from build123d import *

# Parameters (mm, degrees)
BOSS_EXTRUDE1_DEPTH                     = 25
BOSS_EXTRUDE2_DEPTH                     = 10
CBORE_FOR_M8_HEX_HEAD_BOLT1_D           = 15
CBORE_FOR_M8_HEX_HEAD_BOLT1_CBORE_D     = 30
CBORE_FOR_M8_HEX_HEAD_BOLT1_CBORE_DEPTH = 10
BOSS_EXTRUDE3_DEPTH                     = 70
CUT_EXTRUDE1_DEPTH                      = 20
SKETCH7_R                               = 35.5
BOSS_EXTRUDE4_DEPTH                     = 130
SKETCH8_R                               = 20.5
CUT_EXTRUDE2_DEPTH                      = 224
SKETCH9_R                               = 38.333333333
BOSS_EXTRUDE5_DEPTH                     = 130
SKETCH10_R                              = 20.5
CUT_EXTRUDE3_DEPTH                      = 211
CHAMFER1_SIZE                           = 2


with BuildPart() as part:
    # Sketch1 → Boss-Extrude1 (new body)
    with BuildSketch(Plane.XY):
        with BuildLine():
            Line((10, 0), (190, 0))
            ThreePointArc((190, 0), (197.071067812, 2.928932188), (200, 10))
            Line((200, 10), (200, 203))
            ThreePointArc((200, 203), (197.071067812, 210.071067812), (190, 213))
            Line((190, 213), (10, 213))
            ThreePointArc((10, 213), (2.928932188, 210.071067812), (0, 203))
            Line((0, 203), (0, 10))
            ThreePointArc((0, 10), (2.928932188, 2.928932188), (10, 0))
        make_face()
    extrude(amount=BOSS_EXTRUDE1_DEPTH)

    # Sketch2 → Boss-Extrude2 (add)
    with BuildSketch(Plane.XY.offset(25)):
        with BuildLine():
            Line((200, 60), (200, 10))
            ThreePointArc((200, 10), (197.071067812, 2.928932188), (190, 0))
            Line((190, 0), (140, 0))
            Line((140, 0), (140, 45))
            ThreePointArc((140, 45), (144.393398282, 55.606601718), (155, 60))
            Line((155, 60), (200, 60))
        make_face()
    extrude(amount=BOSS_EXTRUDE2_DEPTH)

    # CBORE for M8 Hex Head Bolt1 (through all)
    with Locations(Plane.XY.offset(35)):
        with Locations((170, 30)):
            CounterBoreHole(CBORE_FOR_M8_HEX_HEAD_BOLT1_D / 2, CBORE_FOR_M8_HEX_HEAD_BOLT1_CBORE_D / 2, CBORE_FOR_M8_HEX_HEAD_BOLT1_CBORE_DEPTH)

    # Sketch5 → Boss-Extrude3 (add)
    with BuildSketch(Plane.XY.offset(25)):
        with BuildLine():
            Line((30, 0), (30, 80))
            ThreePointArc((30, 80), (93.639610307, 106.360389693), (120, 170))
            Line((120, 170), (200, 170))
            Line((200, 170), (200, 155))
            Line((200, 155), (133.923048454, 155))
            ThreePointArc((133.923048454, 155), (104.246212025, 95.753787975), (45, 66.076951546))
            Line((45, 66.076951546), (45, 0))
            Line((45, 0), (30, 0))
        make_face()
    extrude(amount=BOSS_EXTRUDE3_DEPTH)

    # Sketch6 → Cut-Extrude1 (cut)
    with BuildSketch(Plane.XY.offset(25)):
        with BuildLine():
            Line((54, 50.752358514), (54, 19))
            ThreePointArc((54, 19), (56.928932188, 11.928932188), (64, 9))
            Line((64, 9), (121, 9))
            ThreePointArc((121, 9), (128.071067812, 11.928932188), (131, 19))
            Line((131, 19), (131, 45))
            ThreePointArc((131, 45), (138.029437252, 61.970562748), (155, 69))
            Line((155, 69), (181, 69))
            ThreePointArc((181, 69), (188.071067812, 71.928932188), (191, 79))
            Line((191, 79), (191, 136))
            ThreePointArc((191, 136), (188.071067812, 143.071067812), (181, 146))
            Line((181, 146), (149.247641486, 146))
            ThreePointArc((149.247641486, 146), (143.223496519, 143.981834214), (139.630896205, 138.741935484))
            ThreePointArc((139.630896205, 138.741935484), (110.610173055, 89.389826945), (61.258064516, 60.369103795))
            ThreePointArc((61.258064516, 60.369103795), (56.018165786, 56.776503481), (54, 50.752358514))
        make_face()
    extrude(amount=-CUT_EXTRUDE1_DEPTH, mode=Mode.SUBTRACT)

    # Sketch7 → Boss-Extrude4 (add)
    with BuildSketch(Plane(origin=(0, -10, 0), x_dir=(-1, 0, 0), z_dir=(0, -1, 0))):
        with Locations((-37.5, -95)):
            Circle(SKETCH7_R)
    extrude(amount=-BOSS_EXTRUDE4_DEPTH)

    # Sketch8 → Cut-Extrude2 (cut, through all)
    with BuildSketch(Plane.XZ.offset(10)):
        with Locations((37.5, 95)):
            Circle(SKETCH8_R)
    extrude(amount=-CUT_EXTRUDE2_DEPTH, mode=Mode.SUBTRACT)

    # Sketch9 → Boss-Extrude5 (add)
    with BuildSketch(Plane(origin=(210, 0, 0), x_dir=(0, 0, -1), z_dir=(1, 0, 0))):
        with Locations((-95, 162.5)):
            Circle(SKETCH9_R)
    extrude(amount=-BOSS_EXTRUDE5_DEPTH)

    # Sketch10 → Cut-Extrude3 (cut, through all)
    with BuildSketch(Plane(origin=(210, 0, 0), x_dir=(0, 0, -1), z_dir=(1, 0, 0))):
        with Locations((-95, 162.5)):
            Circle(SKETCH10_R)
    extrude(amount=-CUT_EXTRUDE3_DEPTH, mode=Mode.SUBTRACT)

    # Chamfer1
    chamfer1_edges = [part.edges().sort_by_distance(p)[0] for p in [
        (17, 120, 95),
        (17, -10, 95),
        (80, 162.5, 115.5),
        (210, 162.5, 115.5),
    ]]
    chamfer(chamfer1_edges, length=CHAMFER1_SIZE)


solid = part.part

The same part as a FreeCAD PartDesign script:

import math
import FreeCAD as App
import Part
import Sketcher
from FreeCAD import Vector


def edges_at(feature, points):
    """Names of the edges that pass closest to the given points."""
    edges = feature.Shape.Edges
    near = lambda p: min(range(len(edges)), key=lambda i: edges[i].distToShape(Part.Vertex(*p))[0])
    return sorted({f"Edge{near(p) + 1}" for p in points})

doc = App.newDocument("Part")
body = doc.addObject("PartDesign::Body", "Body")

sketch1 = doc.addObject("Sketcher::SketchObject", "Sketch")
body.addObject(sketch1)
sketch1.AttachmentSupport = (doc.XY_Plane, [""])
sketch1.MapMode = "FlatFace"
sketch1.addGeometry(Part.LineSegment(Vector(10, 0, 0), Vector(190, 0, 0)), False)
sketch1.addGeometry(Part.ArcOfCircle(Part.Circle(Vector(190, 10, 0), Vector(0, 0, 1), 10), math.radians(-90), math.radians(0)), False)
sketch1.addGeometry(Part.LineSegment(Vector(200, 10, 0), Vector(200, 203, 0)), False)
sketch1.addGeometry(Part.ArcOfCircle(Part.Circle(Vector(190, 203, 0), Vector(0, 0, 1), 10), math.radians(0), math.radians(90)), False)
sketch1.addGeometry(Part.LineSegment(Vector(190, 213, 0), Vector(10, 213, 0)), False)
sketch1.addGeometry(Part.ArcOfCircle(Part.Circle(Vector(10, 203, 0), Vector(0, 0, 1), 10), math.radians(90), math.radians(180)), False)
sketch1.addGeometry(Part.LineSegment(Vector(0, 203, 0), Vector(0, 10, 0)), False)
sketch1.addGeometry(Part.ArcOfCircle(Part.Circle(Vector(10, 10, 0), Vector(0, 0, 1), 10), math.radians(180), math.radians(270)), False)
sketch1.addConstraint(Sketcher.Constraint("Tangent", 0, 2, 1, 1))
sketch1.addConstraint(Sketcher.Constraint("Tangent", 1, 2, 2, 1))
sketch1.addConstraint(Sketcher.Constraint("Tangent", 2, 2, 3, 1))
sketch1.addConstraint(Sketcher.Constraint("Tangent", 3, 2, 4, 1))
sketch1.addConstraint(Sketcher.Constraint("Tangent", 4, 2, 5, 1))
sketch1.addConstraint(Sketcher.Constraint("Tangent", 5, 2, 6, 1))
sketch1.addConstraint(Sketcher.Constraint("Tangent", 6, 2, 7, 1))
sketch1.addConstraint(Sketcher.Constraint("Tangent", 7, 2, 0, 1))
sketch1.addConstraint(Sketcher.Constraint("Horizontal", 0))
sketch1.addConstraint(Sketcher.Constraint("Vertical", 2))
sketch1.addConstraint(Sketcher.Constraint("Horizontal", 4))
sketch1.addConstraint(Sketcher.Constraint("Vertical", 6))
sketch1.addConstraint(Sketcher.Constraint("Equal", 1, 3))
sketch1.addConstraint(Sketcher.Constraint("Equal", 3, 5))
sketch1.addConstraint(Sketcher.Constraint("Equal", 5, 7))
sketch1.addConstraint(Sketcher.Constraint("PointOnObject", 0, 2, -1))
sketch1.addConstraint(Sketcher.Constraint("PointOnObject", 5, 2, -2))
sketch1.addConstraint(Sketcher.Constraint("Radius", 1, 10.0))
sketch1.addConstraint(Sketcher.Constraint("DistanceX", 0, 1, 0, 2, 180.0))
sketch1.addConstraint(Sketcher.Constraint("DistanceY", 2, 1, 2, 2, 193.0))
pad1 = doc.addObject("PartDesign::Pad", "Pad")
body.addObject(pad1)
pad1.Profile = sketch1
pad1.Length = 25

sketch2 = doc.addObject("Sketcher::SketchObject", "Sketch001")
body.addObject(sketch2)
sketch2.AttachmentSupport = (doc.XY_Plane, [""])
sketch2.MapMode = "FlatFace"
sketch2.AttachmentOffset = App.Placement(Vector(0, 0, 25), App.Rotation())
sketch2.addGeometry(Part.LineSegment(Vector(200, 10, 0), Vector(200, 60, 0)), False)
sketch2.addGeometry(Part.LineSegment(Vector(200, 60, 0), Vector(155, 60, 0)), False)
sketch2.addGeometry(Part.ArcOfCircle(Part.Circle(Vector(155, 45, 0), Vector(0, 0, 1), 15), math.radians(90), math.radians(180)), False)
sketch2.addGeometry(Part.LineSegment(Vector(140, 45, 0), Vector(140, 0, 0)), False)
sketch2.addGeometry(Part.LineSegment(Vector(140, 0, 0), Vector(190, 0, 0)), False)
sketch2.addGeometry(Part.ArcOfCircle(Part.Circle(Vector(190, 10, 0), Vector(0, 0, 1), 10), math.radians(-90), math.radians(0)), False)
sketch2.addConstraint(Sketcher.Constraint("Coincident", 0, 2, 1, 1))
sketch2.addConstraint(Sketcher.Constraint("Tangent", 1, 2, 2, 1))
sketch2.addConstraint(Sketcher.Constraint("Tangent", 2, 2, 3, 1))
sketch2.addConstraint(Sketcher.Constraint("Coincident", 3, 2, 4, 1))
sketch2.addConstraint(Sketcher.Constraint("Tangent", 4, 2, 5, 1))
sketch2.addConstraint(Sketcher.Constraint("Tangent", 5, 2, 0, 1))
sketch2.addConstraint(Sketcher.Constraint("Vertical", 0))
sketch2.addConstraint(Sketcher.Constraint("Horizontal", 1))
sketch2.addConstraint(Sketcher.Constraint("Vertical", 3))
sketch2.addConstraint(Sketcher.Constraint("Horizontal", 4))
sketch2.addConstraint(Sketcher.Constraint("PointOnObject", 3, 2, -1))
sketch2.addConstraint(Sketcher.Constraint("Equal", 4, 0))
sketch2.addConstraint(Sketcher.Constraint("Radius", 2, 15.0))
sketch2.addConstraint(Sketcher.Constraint("Radius", 5, 10.0))
sketch2.addConstraint(Sketcher.Constraint("DistanceX", 1, 2, 1, 1, 45.0))
sketch2.addConstraint(Sketcher.Constraint("DistanceX", -1, 1, 2, 3, 155.0))
pad2 = doc.addObject("PartDesign::Pad", "Pad001")
body.addObject(pad2)
pad2.Profile = sketch2
pad2.Length = 10

sketch3 = doc.addObject("Sketcher::SketchObject", "Sketch002")
body.addObject(sketch3)
sketch3.AttachmentSupport = (doc.XY_Plane, [""])
sketch3.MapMode = "FlatFace"
sketch3.AttachmentOffset = App.Placement(Vector(0, 0, 35), App.Rotation())
sketch3.addGeometry(Part.Circle(Vector(170, 30, 0), Vector(0, 0, 1), 7.5), False)
sketch3.addConstraint(Sketcher.Constraint("Diameter", 0, 15.0))
sketch3.addConstraint(Sketcher.Constraint("DistanceX", -1, 1, 0, 3, 170.0))
sketch3.addConstraint(Sketcher.Constraint("DistanceY", -1, 1, 0, 3, 30.0))
doc.recompute()
hole = doc.addObject("PartDesign::Hole", "Hole")
body.addObject(hole)
hole.Profile = sketch3
hole.ThreadType = "None"
hole.Diameter = 15
hole.DepthType = "ThroughAll"
hole.HoleCutType = "Counterbore"
hole.HoleCutDiameter = 30
hole.HoleCutDepth = 10

sketch4 = doc.addObject("Sketcher::SketchObject", "Sketch003")
body.addObject(sketch4)
sketch4.AttachmentSupport = (doc.XY_Plane, [""])
sketch4.MapMode = "FlatFace"
sketch4.AttachmentOffset = App.Placement(Vector(0, 0, 25), App.Rotation())
sketch4.addGeometry(Part.LineSegment(Vector(30, 80, 0), Vector(30, 0, 0)), False)
sketch4.addGeometry(Part.LineSegment(Vector(30, 0, 0), Vector(45, 0, 0)), False)
sketch4.addGeometry(Part.LineSegment(Vector(45, 0, 0), Vector(45, 66.076952, 0)), False)
sketch4.addGeometry(Part.ArcOfCircle(Part.Circle(Vector(30, 170, 0), Vector(0, 0, 1), 105), math.radians(-81.786789), math.radians(-8.213211)), False)
sketch4.addGeometry(Part.LineSegment(Vector(133.923048, 155, 0), Vector(200, 155, 0)), False)
sketch4.addGeometry(Part.LineSegment(Vector(200, 155, 0), Vector(200, 170, 0)), False)
sketch4.addGeometry(Part.LineSegment(Vector(200, 170, 0), Vector(120, 170, 0)), False)
sketch4.addGeometry(Part.ArcOfCircle(Part.Circle(Vector(30, 170, 0), Vector(0, 0, 1), 90), math.radians(-90), math.radians(0)), False)
sketch4.addConstraint(Sketcher.Constraint("Coincident", 0, 2, 1, 1))
sketch4.addConstraint(Sketcher.Constraint("Coincident", 1, 2, 2, 1))
sketch4.addConstraint(Sketcher.Constraint("Coincident", 2, 2, 3, 1))
sketch4.addConstraint(Sketcher.Constraint("Coincident", 3, 2, 4, 1))
sketch4.addConstraint(Sketcher.Constraint("Coincident", 4, 2, 5, 1))
sketch4.addConstraint(Sketcher.Constraint("Coincident", 5, 2, 6, 1))
sketch4.addConstraint(Sketcher.Constraint("Coincident", 6, 2, 7, 2))
sketch4.addConstraint(Sketcher.Constraint("Coincident", 7, 1, 0, 1))
sketch4.addConstraint(Sketcher.Constraint("Vertical", 0))
sketch4.addConstraint(Sketcher.Constraint("Horizontal", 1))
sketch4.addConstraint(Sketcher.Constraint("Vertical", 2))
sketch4.addConstraint(Sketcher.Constraint("Horizontal", 4))
sketch4.addConstraint(Sketcher.Constraint("Vertical", 5))
sketch4.addConstraint(Sketcher.Constraint("Horizontal", 6))
sketch4.addConstraint(Sketcher.Constraint("Coincident", 7, 3, 3, 3))
sketch4.addConstraint(Sketcher.Constraint("PointOnObject", 0, 2, -1))
sketch4.addConstraint(Sketcher.Constraint("Horizontal", 7, 3, 5, 2))
sketch4.addConstraint(Sketcher.Constraint("Vertical", 7, 3, 0, 2))
sketch4.addConstraint(Sketcher.Constraint("Equal", 6, 0))
sketch4.addConstraint(Sketcher.Constraint("Equal", 4, 2))
sketch4.addConstraint(Sketcher.Constraint("Radius", 3, 105.0))
sketch4.addConstraint(Sketcher.Constraint("Radius", 7, 90.0))
sketch4.addConstraint(Sketcher.Constraint("DistanceX", 1, 1, 1, 2, 15.0))
sketch4.addConstraint(Sketcher.Constraint("DistanceX", 6, 2, 6, 1, 80.0))
sketch4.addConstraint(Sketcher.Constraint("DistanceX", -1, 1, 3, 3, 30.0))
pad3 = doc.addObject("PartDesign::Pad", "Pad002")
body.addObject(pad3)
pad3.Profile = sketch4
pad3.Length = 70

sketch5 = doc.addObject("Sketcher::SketchObject", "Sketch004")
body.addObject(sketch5)
sketch5.AttachmentSupport = (doc.XY_Plane, [""])
sketch5.MapMode = "FlatFace"
sketch5.AttachmentOffset = App.Placement(Vector(0, 0, 25), App.Rotation())
sketch5.addGeometry(Part.LineSegment(Vector(54, 50.752359, 0), Vector(54, 19, 0)), False)
sketch5.addGeometry(Part.ArcOfCircle(Part.Circle(Vector(64, 19, 0), Vector(0, 0, 1), 10), math.radians(180), math.radians(270)), False)
sketch5.addGeometry(Part.LineSegment(Vector(64, 9, 0), Vector(121, 9, 0)), False)
sketch5.addGeometry(Part.ArcOfCircle(Part.Circle(Vector(121, 19, 0), Vector(0, 0, 1), 10), math.radians(-90), math.radians(0)), False)
sketch5.addGeometry(Part.LineSegment(Vector(131, 19, 0), Vector(131, 45, 0)), False)
sketch5.addGeometry(Part.ArcOfCircle(Part.Circle(Vector(155, 45, 0), Vector(0, 0, 1), 24), math.radians(90), math.radians(180)), False)
sketch5.addGeometry(Part.LineSegment(Vector(155, 69, 0), Vector(181, 69, 0)), False)
sketch5.addGeometry(Part.ArcOfCircle(Part.Circle(Vector(181, 79, 0), Vector(0, 0, 1), 10), math.radians(-90), math.radians(0)), False)
sketch5.addGeometry(Part.LineSegment(Vector(191, 79, 0), Vector(191, 136, 0)), False)
sketch5.addGeometry(Part.ArcOfCircle(Part.Circle(Vector(181, 136, 0), Vector(0, 0, 1), 10), math.radians(0), math.radians(90)), False)
sketch5.addGeometry(Part.LineSegment(Vector(181, 146, 0), Vector(149.247641, 146, 0)), False)
sketch5.addGeometry(Part.ArcOfCircle(Part.Circle(Vector(149.247641, 136, 0), Vector(0, 0, 1), 10), math.radians(90), math.radians(164.086039)), False)
sketch5.addGeometry(Part.ArcOfCircle(Part.Circle(Vector(30, 170, 0), Vector(0, 0, 1), 114), math.radians(-74.086039), math.radians(-15.913961)), False)
sketch5.addGeometry(Part.ArcOfCircle(Part.Circle(Vector(64, 50.752359, 0), Vector(0, 0, 1), 10), math.radians(105.913961), math.radians(180)), False)
sketch5.addConstraint(Sketcher.Constraint("Tangent", 0, 2, 1, 1))
sketch5.addConstraint(Sketcher.Constraint("Tangent", 1, 2, 2, 1))
sketch5.addConstraint(Sketcher.Constraint("Tangent", 2, 2, 3, 1))
sketch5.addConstraint(Sketcher.Constraint("Tangent", 3, 2, 4, 1))
sketch5.addConstraint(Sketcher.Constraint("Tangent", 4, 2, 5, 2))
sketch5.addConstraint(Sketcher.Constraint("Tangent", 5, 1, 6, 1))
sketch5.addConstraint(Sketcher.Constraint("Tangent", 6, 2, 7, 1))
sketch5.addConstraint(Sketcher.Constraint("Tangent", 7, 2, 8, 1))
sketch5.addConstraint(Sketcher.Constraint("Tangent", 8, 2, 9, 1))
sketch5.addConstraint(Sketcher.Constraint("Tangent", 9, 2, 10, 1))
sketch5.addConstraint(Sketcher.Constraint("Tangent", 10, 2, 11, 1))
sketch5.addConstraint(Sketcher.Constraint("Tangent", 11, 2, 12, 2))
sketch5.addConstraint(Sketcher.Constraint("Tangent", 12, 1, 13, 1))
sketch5.addConstraint(Sketcher.Constraint("Tangent", 13, 2, 0, 1))
sketch5.addConstraint(Sketcher.Constraint("Vertical", 0))
sketch5.addConstraint(Sketcher.Constraint("Horizontal", 2))
sketch5.addConstraint(Sketcher.Constraint("Vertical", 4))
sketch5.addConstraint(Sketcher.Constraint("Horizontal", 6))
sketch5.addConstraint(Sketcher.Constraint("Vertical", 8))
sketch5.addConstraint(Sketcher.Constraint("Horizontal", 10))
sketch5.addConstraint(Sketcher.Constraint("Equal", 1, 3))
sketch5.addConstraint(Sketcher.Constraint("Equal", 3, 7))
sketch5.addConstraint(Sketcher.Constraint("Equal", 7, 9))
sketch5.addConstraint(Sketcher.Constraint("Equal", 9, 11))
sketch5.addConstraint(Sketcher.Constraint("Equal", 11, 13))
sketch5.addConstraint(Sketcher.Constraint("Equal", 10, 0))
sketch5.addConstraint(Sketcher.Constraint("Equal", 6, 4))
sketch5.addConstraint(Sketcher.Constraint("Equal", 2, 8))
sketch5.addConstraint(Sketcher.Constraint("Radius", 1, 10.0))
sketch5.addConstraint(Sketcher.Constraint("Radius", 5, 24.0))
sketch5.addConstraint(Sketcher.Constraint("Radius", 12, 114.0))
sketch5.addConstraint(Sketcher.Constraint("DistanceX", 2, 1, 2, 2, 57.0))
sketch5.addConstraint(Sketcher.Constraint("DistanceX", 6, 1, 6, 2, 26.0))
sketch5.addConstraint(Sketcher.Constraint("DistanceX", -1, 1, 1, 3, 64.0))
sketch5.addConstraint(Sketcher.Constraint("DistanceY", -1, 1, 1, 3, 19.0))
sketch5.addConstraint(Sketcher.Constraint("DistanceX", -1, 1, 12, 3, 30.0))
pocket1 = doc.addObject("PartDesign::Pocket", "Pocket")
body.addObject(pocket1)
pocket1.Profile = sketch5
pocket1.Length = 20

sketch6 = doc.addObject("Sketcher::SketchObject", "Sketch005")
body.addObject(sketch6)
sketch6.AttachmentSupport = (doc.XZ_Plane, [""])
sketch6.MapMode = "FlatFace"
sketch6.AttachmentOffset = App.Placement(Vector(0, 0, 10), App.Rotation())
sketch6.addGeometry(Part.Circle(Vector(37.5, 95, 0), Vector(0, 0, 1), 35.5), False)
sketch6.addConstraint(Sketcher.Constraint("Diameter", 0, 71.0))
sketch6.addConstraint(Sketcher.Constraint("DistanceY", -1, 1, 0, 3, 95.0))
sketch6.addConstraint(Sketcher.Constraint("DistanceX", -1, 1, 0, 3, 37.5))
pad4 = doc.addObject("PartDesign::Pad", "Pad003")
body.addObject(pad4)
pad4.Profile = sketch6
pad4.Length = 130
pad4.Reversed = True

sketch7 = doc.addObject("Sketcher::SketchObject", "Sketch006")
body.addObject(sketch7)
sketch7.AttachmentSupport = (doc.XZ_Plane, [""])
sketch7.MapMode = "FlatFace"
sketch7.AttachmentOffset = App.Placement(Vector(0, 0, 10), App.Rotation())
sketch7.addGeometry(Part.Circle(Vector(37.5, 95, 0), Vector(0, 0, 1), 20.5), False)
sketch7.addConstraint(Sketcher.Constraint("Diameter", 0, 41.0))
sketch7.addConstraint(Sketcher.Constraint("DistanceY", -1, 1, 0, 3, 95.0))
sketch7.addConstraint(Sketcher.Constraint("DistanceX", -1, 1, 0, 3, 37.5))
pocket2 = doc.addObject("PartDesign::Pocket", "Pocket001")
body.addObject(pocket2)
pocket2.Profile = sketch7
pocket2.Type = "ThroughAll"

sketch8 = doc.addObject("Sketcher::SketchObject", "Sketch007")
body.addObject(sketch8)
sketch8.AttachmentSupport = (doc.YZ_Plane, [""])
sketch8.MapMode = "FlatFace"
sketch8.AttachmentOffset = App.Placement(Vector(0, 0, 210), App.Rotation())
sketch8.addGeometry(Part.Circle(Vector(162.5, 95, 0), Vector(0, 0, 1), 38.333333), False)
sketch8.addConstraint(Sketcher.Constraint("DistanceY", -1, 1, 0, 3, 95.0))
sketch8.addConstraint(Sketcher.Constraint("DistanceX", -1, 1, 0, 3, 162.5))
sketch8.addConstraint(Sketcher.Constraint("Diameter", 0, 76.666667))
pad5 = doc.addObject("PartDesign::Pad", "Pad004")
body.addObject(pad5)
pad5.Profile = sketch8
pad5.Length = 130
pad5.Reversed = True

sketch9 = doc.addObject("Sketcher::SketchObject", "Sketch008")
body.addObject(sketch9)
sketch9.AttachmentSupport = (doc.YZ_Plane, [""])
sketch9.MapMode = "FlatFace"
sketch9.AttachmentOffset = App.Placement(Vector(0, 0, 210), App.Rotation())
sketch9.addGeometry(Part.Circle(Vector(162.5, 95, 0), Vector(0, 0, 1), 20.5), False)
sketch9.addConstraint(Sketcher.Constraint("Diameter", 0, 41.0))
sketch9.addConstraint(Sketcher.Constraint("DistanceY", -1, 1, 0, 3, 95.0))
sketch9.addConstraint(Sketcher.Constraint("DistanceX", -1, 1, 0, 3, 162.5))
pocket3 = doc.addObject("PartDesign::Pocket", "Pocket002")
body.addObject(pocket3)
pocket3.Profile = sketch9
pocket3.Type = "ThroughAll"
doc.recompute()

chamfer = doc.addObject("PartDesign::Chamfer", "Chamfer")
body.addObject(chamfer)
chamfer.Base = (pocket3, edges_at(pocket3, [
    (17, 120, 95),
    (17, -10, 95),
    (80, 162.5, 115.5),
    (210, 162.5, 115.5),
]))
chamfer.Size = 2

doc.recompute()
